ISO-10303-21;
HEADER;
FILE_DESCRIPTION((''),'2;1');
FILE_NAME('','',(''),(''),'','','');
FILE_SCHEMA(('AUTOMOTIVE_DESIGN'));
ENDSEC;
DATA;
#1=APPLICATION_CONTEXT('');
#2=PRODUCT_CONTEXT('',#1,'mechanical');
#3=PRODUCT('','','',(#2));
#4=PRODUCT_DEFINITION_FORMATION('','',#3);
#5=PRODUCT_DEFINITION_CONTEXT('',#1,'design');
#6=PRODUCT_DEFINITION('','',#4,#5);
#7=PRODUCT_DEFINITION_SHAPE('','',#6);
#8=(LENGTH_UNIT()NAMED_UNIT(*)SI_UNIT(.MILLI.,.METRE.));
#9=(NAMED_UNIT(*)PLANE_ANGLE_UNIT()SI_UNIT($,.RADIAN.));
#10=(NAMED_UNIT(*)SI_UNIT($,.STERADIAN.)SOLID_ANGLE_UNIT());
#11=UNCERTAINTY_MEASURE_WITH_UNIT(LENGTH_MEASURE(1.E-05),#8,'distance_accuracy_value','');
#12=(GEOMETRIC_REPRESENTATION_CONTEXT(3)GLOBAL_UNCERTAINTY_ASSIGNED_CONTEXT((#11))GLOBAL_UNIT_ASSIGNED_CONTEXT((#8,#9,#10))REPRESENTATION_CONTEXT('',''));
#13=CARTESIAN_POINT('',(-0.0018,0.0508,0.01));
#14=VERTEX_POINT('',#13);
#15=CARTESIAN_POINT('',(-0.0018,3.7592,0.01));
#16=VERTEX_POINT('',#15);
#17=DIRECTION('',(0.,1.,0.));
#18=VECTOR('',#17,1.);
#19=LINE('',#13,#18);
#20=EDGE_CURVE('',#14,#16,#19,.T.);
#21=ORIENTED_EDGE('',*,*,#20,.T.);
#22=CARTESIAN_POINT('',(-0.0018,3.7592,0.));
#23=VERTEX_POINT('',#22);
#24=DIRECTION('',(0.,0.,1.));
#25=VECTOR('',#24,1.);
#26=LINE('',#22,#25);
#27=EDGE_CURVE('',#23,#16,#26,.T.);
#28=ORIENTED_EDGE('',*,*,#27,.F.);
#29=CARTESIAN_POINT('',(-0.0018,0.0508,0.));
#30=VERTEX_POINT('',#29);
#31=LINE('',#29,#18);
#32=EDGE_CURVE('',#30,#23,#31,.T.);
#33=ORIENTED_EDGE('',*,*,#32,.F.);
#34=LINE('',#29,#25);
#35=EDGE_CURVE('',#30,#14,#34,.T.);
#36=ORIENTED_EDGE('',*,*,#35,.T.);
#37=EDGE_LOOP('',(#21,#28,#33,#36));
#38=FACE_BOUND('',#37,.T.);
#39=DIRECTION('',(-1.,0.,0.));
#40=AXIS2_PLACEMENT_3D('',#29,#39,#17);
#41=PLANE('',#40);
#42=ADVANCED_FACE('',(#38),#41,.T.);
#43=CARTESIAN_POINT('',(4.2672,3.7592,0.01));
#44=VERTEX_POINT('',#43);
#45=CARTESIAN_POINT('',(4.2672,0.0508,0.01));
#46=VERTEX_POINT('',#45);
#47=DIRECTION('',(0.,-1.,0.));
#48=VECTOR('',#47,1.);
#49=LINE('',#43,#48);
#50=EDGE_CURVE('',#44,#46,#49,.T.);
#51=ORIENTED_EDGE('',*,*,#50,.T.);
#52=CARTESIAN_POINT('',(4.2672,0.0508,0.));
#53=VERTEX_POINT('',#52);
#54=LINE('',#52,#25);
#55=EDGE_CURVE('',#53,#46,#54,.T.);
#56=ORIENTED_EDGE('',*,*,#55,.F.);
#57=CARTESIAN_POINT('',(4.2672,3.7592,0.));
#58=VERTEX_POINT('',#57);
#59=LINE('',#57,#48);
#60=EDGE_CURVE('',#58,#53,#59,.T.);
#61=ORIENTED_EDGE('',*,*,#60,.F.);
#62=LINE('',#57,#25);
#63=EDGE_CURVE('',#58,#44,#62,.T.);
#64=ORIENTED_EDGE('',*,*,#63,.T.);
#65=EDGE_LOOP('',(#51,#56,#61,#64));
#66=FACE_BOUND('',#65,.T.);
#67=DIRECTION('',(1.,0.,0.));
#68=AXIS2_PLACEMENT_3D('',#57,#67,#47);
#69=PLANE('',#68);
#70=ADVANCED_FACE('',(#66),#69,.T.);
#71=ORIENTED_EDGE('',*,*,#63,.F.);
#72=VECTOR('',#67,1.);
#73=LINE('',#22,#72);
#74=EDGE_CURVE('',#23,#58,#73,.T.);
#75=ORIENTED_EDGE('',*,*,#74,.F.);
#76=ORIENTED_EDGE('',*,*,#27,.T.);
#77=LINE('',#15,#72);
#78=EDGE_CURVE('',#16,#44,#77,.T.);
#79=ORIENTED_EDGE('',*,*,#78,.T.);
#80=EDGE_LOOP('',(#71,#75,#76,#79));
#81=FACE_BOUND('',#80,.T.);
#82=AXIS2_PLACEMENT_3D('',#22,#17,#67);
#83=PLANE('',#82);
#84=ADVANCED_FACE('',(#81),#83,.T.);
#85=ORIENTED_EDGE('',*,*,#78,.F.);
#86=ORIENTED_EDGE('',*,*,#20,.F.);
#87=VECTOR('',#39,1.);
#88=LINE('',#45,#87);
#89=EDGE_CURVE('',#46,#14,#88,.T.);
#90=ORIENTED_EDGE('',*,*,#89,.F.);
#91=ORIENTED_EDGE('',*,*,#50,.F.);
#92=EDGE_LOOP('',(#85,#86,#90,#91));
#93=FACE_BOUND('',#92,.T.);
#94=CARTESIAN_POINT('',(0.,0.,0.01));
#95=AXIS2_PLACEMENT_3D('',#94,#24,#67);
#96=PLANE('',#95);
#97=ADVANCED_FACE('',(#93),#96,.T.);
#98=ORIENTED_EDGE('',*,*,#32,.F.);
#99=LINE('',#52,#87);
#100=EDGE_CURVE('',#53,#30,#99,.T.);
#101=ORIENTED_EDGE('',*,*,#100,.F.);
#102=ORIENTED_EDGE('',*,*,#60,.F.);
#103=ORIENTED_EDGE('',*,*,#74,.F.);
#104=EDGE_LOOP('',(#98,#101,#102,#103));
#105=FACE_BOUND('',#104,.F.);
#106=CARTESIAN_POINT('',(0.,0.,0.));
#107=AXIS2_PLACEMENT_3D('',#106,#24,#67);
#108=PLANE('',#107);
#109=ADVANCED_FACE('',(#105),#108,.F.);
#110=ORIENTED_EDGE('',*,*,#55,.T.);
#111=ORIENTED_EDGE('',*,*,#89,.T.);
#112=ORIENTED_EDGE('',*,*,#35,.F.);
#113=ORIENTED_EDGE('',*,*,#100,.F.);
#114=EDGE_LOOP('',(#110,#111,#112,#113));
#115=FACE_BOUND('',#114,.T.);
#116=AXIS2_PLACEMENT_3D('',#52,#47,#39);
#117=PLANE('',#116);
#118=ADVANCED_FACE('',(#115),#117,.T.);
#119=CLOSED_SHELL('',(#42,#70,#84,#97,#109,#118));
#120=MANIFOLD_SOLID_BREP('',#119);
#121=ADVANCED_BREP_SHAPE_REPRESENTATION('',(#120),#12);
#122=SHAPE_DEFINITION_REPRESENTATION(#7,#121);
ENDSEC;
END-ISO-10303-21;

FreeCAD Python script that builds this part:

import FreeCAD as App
import Part
import Sketcher
from FreeCAD import Vector
Q = App.Units.Quantity

doc = App.newDocument("Part")
body = doc.addObject("PartDesign::Body", "Body")

sketch1 = body.newObject("Sketcher::SketchObject", "Sketch")
sketch1.AttachmentSupport = (doc.getObject("XY_Plane"), [""])
sketch1.MapMode = "FlatFace"
sketch1.addGeometry([
    Part.LineSegment(Vector(0, 0.1, 0), Vector(4.3, 0.1, 0)),
    Part.LineSegment(Vector(4.3, 0.1, 0), Vector(4.3, 3.8, 0)),
    Part.LineSegment(Vector(4.3, 3.8, 0), Vector(0, 3.8, 0)),
    Part.LineSegment(Vector(0, 3.8, 0), Vector(0, 0.1, 0)),
], False)
sketch1.addConstraint([
    Sketcher.Constraint("Coincident", 0, 2, 1, 1),
    Sketcher.Constraint("Coincident", 1, 2, 2, 1),
    Sketcher.Constraint("Coincident", 2, 2, 3, 1),
    Sketcher.Constraint("Coincident", 3, 2, 0, 1),
    Sketcher.Constraint("Horizontal", 0),
    Sketcher.Constraint("Vertical", 1),
    Sketcher.Constraint("Horizontal", 2),
    Sketcher.Constraint("Vertical", 3),
    Sketcher.Constraint("DistanceY", 1, 1, 1, 2, Q("0.146 in")),
    Sketcher.Constraint("DistanceX", -1, 1, 0, 2, Q("0.168 in")),
    Sketcher.Constraint("DistanceY", -1, 1, 0, 2, Q("0.002 in")),
    Sketcher.Constraint("DistanceX", 0, 1, 0, 2, Q("4.269 mm")),
])
pad1 = body.newObject("PartDesign::Pad", "Pad")
pad1.Profile = sketch1
pad1.Length = Q("0.0003937 in")

doc.recompute()
